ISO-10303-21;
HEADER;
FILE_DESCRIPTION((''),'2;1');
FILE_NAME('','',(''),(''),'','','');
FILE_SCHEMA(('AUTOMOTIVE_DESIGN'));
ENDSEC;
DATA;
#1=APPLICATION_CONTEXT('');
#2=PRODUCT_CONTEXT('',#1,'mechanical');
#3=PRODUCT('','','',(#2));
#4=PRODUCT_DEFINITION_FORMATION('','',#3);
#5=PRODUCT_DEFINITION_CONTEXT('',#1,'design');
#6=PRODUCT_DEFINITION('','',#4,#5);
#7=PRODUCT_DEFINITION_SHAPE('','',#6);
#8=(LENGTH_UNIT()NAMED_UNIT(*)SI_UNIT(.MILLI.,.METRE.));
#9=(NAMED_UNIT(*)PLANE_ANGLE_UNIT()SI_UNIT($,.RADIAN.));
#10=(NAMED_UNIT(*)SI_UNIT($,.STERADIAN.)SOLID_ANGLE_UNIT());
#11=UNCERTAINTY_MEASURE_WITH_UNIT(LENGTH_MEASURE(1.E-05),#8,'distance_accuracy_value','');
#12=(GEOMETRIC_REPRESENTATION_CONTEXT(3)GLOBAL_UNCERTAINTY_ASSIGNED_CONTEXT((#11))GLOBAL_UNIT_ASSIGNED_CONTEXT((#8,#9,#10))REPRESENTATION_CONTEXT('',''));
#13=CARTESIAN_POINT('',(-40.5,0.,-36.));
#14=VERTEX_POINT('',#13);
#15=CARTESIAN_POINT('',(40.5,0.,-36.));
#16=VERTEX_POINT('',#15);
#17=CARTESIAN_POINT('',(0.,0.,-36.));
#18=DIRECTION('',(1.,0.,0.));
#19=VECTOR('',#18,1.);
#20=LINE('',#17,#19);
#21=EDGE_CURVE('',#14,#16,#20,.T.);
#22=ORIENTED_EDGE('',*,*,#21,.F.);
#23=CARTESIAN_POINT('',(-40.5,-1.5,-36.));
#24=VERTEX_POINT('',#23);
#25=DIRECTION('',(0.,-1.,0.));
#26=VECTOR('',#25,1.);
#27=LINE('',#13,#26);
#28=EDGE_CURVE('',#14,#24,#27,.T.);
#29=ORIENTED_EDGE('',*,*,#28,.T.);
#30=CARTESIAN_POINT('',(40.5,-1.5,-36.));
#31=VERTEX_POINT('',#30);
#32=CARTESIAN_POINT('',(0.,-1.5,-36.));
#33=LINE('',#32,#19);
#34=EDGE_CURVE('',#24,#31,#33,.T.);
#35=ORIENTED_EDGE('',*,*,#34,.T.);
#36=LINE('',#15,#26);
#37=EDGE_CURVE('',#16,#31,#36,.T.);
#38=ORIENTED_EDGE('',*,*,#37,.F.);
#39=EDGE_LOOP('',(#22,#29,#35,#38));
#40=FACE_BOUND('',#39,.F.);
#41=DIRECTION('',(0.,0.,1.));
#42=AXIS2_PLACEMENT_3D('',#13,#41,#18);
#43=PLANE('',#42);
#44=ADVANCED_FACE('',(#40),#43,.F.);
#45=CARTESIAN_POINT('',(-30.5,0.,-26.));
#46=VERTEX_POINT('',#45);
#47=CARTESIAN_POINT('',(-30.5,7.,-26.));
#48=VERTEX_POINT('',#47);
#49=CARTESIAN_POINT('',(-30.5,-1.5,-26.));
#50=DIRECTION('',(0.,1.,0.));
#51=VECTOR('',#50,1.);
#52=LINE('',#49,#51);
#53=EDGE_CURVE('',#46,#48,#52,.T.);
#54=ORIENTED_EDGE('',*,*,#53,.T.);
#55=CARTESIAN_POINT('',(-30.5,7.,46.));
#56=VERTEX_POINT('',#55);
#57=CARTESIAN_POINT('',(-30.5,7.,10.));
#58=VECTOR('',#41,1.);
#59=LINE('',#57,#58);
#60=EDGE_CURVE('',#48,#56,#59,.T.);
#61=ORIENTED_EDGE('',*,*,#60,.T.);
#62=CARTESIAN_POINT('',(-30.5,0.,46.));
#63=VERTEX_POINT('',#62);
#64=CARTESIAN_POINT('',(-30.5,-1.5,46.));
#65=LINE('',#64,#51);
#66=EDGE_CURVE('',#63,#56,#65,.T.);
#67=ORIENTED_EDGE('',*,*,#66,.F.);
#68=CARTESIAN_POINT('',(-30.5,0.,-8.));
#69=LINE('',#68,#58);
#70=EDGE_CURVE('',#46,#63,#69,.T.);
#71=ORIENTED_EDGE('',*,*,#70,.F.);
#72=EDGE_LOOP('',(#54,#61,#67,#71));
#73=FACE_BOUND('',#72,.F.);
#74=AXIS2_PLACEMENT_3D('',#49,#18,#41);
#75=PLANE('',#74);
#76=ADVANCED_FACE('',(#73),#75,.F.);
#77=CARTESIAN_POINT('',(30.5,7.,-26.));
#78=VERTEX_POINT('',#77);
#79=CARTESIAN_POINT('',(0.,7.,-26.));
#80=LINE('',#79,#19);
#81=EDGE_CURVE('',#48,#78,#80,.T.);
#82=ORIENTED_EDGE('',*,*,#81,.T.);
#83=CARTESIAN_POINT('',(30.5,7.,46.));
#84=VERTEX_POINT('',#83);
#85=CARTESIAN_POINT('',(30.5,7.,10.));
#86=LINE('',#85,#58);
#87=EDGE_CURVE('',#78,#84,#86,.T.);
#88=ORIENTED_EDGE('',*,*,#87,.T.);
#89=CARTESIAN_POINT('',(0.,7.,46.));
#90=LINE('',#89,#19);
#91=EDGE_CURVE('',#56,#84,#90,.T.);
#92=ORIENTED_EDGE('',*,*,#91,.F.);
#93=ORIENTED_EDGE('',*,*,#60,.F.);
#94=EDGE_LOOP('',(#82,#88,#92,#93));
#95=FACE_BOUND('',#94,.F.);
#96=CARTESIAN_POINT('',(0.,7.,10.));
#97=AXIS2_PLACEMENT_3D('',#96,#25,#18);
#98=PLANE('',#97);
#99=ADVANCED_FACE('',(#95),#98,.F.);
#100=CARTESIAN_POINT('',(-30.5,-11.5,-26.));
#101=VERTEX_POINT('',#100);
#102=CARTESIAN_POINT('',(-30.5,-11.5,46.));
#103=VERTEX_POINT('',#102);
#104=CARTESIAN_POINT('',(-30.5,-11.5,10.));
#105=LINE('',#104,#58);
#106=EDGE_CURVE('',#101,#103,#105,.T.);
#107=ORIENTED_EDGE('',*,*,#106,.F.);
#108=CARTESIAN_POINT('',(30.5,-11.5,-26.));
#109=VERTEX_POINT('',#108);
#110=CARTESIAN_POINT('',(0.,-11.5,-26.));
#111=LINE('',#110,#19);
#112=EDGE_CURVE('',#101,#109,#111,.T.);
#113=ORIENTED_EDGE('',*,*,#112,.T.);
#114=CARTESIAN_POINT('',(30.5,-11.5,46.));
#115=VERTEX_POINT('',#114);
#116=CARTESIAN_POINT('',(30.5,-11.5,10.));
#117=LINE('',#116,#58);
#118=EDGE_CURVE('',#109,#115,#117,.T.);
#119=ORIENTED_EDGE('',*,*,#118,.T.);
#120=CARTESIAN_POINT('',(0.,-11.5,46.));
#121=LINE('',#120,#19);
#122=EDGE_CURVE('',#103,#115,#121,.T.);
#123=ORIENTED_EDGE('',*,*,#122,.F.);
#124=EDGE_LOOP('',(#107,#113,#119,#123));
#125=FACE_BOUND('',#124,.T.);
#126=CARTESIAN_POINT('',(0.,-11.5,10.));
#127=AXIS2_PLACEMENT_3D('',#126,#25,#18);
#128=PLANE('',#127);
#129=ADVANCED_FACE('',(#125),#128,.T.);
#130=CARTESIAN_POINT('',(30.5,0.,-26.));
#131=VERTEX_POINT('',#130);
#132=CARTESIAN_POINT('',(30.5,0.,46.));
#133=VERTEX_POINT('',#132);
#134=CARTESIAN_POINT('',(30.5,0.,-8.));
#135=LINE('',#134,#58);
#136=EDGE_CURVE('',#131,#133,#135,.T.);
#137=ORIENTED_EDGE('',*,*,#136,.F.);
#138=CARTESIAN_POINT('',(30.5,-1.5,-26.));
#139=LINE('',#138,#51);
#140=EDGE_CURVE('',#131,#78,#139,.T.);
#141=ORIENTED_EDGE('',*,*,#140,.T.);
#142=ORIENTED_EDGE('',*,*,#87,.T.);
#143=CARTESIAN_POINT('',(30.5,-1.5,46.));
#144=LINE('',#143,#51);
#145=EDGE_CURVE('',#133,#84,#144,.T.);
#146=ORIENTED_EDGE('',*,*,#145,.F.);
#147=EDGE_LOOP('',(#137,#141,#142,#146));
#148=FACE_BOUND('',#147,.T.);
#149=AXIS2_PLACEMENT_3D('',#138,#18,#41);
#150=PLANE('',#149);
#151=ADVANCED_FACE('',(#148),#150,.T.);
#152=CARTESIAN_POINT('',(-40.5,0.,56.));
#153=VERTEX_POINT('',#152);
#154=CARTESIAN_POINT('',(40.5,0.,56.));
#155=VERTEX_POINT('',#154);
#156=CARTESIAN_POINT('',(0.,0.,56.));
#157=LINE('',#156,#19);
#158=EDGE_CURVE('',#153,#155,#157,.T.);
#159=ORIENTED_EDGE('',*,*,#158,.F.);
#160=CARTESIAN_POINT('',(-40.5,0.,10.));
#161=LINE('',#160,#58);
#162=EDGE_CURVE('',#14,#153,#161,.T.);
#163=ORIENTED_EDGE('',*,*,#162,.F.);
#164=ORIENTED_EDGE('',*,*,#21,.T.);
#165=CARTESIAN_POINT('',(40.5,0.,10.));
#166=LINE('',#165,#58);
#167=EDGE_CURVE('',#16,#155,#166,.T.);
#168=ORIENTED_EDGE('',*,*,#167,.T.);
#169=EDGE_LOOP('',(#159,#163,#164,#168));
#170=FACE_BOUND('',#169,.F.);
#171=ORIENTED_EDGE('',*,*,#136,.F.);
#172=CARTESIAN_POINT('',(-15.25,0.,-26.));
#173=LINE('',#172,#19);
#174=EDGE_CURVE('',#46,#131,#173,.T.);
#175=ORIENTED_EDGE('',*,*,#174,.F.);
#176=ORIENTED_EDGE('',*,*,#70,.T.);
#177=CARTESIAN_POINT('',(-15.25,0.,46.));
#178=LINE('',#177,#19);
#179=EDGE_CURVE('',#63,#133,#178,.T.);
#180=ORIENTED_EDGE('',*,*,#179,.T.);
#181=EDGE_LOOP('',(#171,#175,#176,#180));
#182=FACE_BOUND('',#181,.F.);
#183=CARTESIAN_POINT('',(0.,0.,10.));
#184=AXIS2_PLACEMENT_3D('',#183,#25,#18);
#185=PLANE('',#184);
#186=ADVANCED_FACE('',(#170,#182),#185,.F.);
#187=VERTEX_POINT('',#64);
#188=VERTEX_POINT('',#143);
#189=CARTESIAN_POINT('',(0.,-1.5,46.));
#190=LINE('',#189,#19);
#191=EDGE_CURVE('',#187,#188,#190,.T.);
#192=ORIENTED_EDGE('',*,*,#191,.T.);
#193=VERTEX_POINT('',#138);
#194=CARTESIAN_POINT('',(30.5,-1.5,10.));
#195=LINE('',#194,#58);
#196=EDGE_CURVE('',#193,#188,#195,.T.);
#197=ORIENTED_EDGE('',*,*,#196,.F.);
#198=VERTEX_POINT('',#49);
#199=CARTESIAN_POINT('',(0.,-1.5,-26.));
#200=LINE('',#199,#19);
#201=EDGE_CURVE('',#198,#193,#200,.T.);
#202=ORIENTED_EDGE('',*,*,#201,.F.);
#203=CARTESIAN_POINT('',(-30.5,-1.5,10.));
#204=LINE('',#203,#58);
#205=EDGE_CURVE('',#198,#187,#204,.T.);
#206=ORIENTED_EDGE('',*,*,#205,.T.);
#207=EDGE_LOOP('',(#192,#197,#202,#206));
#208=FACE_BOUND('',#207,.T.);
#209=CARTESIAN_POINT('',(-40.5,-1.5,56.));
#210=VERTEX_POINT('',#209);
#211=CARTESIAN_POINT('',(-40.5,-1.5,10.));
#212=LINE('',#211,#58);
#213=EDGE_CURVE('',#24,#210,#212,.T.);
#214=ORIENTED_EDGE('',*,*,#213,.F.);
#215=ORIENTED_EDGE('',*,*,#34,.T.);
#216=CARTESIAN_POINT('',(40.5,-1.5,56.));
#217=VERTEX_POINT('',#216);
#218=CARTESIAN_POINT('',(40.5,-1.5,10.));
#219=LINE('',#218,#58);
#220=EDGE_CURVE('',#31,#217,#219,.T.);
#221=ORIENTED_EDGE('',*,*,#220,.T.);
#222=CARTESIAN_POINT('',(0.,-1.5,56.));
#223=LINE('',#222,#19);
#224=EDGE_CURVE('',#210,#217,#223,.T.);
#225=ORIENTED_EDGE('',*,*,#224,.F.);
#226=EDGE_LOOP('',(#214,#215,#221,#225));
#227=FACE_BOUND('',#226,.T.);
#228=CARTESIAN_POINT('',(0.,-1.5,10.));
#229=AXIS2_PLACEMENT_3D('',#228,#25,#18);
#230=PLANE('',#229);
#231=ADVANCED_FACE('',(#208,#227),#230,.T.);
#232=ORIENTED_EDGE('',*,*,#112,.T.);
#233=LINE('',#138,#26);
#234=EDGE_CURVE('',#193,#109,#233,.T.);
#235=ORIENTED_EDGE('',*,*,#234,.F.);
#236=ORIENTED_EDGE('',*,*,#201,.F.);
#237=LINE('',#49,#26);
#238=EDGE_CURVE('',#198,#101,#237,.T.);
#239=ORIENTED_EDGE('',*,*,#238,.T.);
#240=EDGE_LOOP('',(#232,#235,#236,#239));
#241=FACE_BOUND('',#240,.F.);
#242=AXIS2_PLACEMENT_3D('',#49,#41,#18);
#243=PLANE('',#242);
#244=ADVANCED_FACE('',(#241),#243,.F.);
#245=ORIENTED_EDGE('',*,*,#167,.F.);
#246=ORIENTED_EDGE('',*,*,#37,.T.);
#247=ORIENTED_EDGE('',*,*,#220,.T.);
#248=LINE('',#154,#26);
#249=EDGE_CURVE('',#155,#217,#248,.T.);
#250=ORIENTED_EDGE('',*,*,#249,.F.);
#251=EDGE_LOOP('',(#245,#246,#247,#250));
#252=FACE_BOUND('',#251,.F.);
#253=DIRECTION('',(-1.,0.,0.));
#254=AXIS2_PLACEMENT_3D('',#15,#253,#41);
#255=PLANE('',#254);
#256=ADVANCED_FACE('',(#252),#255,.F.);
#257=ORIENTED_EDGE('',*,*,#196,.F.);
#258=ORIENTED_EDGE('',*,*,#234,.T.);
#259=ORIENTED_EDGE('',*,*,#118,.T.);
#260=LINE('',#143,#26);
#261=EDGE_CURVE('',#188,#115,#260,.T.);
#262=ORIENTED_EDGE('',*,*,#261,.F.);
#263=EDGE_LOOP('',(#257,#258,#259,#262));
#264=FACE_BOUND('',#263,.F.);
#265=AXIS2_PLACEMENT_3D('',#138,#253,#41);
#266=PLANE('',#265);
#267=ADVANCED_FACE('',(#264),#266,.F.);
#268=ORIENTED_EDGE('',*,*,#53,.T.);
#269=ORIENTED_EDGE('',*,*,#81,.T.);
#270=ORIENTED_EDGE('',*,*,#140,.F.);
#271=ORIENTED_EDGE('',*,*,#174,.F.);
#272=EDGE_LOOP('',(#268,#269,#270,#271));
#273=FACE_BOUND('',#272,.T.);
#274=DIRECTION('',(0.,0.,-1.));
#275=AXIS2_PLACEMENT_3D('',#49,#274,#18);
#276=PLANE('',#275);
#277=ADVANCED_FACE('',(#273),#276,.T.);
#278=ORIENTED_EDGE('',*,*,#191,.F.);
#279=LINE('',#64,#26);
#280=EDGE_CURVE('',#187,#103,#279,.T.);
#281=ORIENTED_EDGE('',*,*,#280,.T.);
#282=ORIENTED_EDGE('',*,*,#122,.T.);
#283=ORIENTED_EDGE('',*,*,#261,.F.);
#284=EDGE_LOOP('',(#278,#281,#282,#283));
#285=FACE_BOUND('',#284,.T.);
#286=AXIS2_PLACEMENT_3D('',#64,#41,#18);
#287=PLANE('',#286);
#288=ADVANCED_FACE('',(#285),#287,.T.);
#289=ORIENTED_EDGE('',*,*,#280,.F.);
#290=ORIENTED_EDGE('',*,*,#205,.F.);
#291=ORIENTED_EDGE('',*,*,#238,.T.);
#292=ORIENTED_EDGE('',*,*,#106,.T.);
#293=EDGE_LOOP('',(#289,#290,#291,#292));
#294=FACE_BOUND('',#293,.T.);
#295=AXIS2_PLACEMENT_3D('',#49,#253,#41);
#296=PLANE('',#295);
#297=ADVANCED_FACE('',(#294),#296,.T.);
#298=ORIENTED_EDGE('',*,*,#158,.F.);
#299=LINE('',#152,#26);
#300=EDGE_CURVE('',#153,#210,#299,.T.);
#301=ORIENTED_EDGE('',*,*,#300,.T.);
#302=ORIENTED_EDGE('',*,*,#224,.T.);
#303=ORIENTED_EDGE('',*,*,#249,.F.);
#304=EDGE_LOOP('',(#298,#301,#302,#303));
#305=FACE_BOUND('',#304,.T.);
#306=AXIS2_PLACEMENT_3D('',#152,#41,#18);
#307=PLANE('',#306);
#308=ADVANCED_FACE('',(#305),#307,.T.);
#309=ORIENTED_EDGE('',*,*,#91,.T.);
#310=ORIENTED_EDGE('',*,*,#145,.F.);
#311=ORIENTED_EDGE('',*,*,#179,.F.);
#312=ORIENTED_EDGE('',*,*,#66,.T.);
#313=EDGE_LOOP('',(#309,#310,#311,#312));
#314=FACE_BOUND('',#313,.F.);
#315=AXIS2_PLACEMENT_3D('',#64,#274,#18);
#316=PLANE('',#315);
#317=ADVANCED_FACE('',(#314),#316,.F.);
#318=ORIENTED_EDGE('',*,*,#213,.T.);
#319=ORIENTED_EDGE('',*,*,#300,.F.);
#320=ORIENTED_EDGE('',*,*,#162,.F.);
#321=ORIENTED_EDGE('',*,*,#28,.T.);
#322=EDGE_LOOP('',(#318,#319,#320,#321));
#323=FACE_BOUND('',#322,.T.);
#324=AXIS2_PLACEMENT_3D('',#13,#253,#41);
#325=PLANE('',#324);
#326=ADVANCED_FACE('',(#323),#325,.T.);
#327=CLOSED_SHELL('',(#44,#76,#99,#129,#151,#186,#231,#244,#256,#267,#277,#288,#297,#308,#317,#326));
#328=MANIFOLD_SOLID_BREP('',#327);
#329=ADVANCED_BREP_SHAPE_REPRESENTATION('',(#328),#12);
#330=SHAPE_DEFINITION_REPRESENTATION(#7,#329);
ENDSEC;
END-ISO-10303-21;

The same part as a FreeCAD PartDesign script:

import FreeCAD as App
import Part
import Sketcher
from FreeCAD import Vector
Q = App.Units.Quantity

doc = App.newDocument("Part")
body = doc.addObject("PartDesign::Body", "Body")

sketch1 = body.newObject("Sketcher::SketchObject", "Sketch")
sketch1.AttachmentSupport = (doc.getObject("XZ_Plane"), [""])
sketch1.MapMode = "FlatFace"
sketch1.addGeometry([
    Part.LineSegment(Vector(-40.5, 56, 0), Vector(-40.5, -36, 0)),
    Part.LineSegment(Vector(-40.5, -36, 0), Vector(40.5, -36, 0)),
    Part.LineSegment(Vector(40.5, -36, 0), Vector(40.5, 56, 0)),
    Part.LineSegment(Vector(40.5, 56, 0), Vector(-40.5, 56, 0)),
], False)
sketch1.addConstraint([
    Sketcher.Constraint("Coincident", 0, 2, 1, 1),
    Sketcher.Constraint("Coincident", 1, 2, 2, 1),
    Sketcher.Constraint("Coincident", 2, 2, 3, 1),
    Sketcher.Constraint("Coincident", 3, 2, 0, 1),
    Sketcher.Constraint("Vertical", 0),
    Sketcher.Constraint("Horizontal", 1),
    Sketcher.Constraint("Vertical", 2),
    Sketcher.Constraint("Horizontal", 3),
    Sketcher.Constraint("DistanceX", 1, 1, 1, 2, Q("81 mm")),
    Sketcher.Constraint("DistanceY", 0, 2, 0, 1, Q("92 mm")),
    Sketcher.Constraint("DistanceY", 0, 2, -1, 1, Q("36 mm")),
    Sketcher.Constraint("DistanceX", 0, 2, -1, 1, Q("40.5 mm")),
])
pad1 = body.newObject("PartDesign::Pad", "Pad")
pad1.Profile = sketch1
pad1.Length = 1.5

sketch2 = body.newObject("Sketcher::SketchObject", "Sketch001")
sketch2.AttachmentSupport = (doc.getObject("XZ_Plane"), [""])
sketch2.MapMode = "FlatFace"
sketch2.AttachmentOffset = App.Placement(Vector(0, 0, 1.5), App.Rotation())
sketch2.addGeometry([
    Part.LineSegment(Vector(-30.5, 46, 0), Vector(-30.5, -26, 0)),
    Part.LineSegment(Vector(-30.5, -26, 0), Vector(30.5, -26, 0)),
    Part.LineSegment(Vector(30.5, -26, 0), Vector(30.5, 46, 0)),
    Part.LineSegment(Vector(30.5, 46, 0), Vector(-30.5, 46, 0)),
], False)
sketch2.addConstraint([
    Sketcher.Constraint("Coincident", 0, 2, 1, 1),
    Sketcher.Constraint("Coincident", 1, 2, 2, 1),
    Sketcher.Constraint("Coincident", 2, 2, 3, 1),
    Sketcher.Constraint("Coincident", 3, 2, 0, 1),
    Sketcher.Constraint("Vertical", 0),
    Sketcher.Constraint("Horizontal", 1),
    Sketcher.Constraint("Vertical", 2),
    Sketcher.Constraint("Horizontal", 3),
    Sketcher.Constraint("DistanceX", 1, 1, 1, 2, Q("61 mm")),
    Sketcher.Constraint("DistanceY", 0, 2, 0, 1, Q("72 mm")),
    Sketcher.Constraint("DistanceY", 0, 2, -1, 1, Q("26 mm")),
    Sketcher.Constraint("DistanceX", 0, 2, -1, 1, Q("30.5 mm")),
])
pad2 = body.newObject("PartDesign::Pad", "Pad001")
pad2.Profile = sketch2
pad2.Type = "TwoLengths"
pad2.Length = 10
pad2.Length2 = 8.5

doc.recompute()
